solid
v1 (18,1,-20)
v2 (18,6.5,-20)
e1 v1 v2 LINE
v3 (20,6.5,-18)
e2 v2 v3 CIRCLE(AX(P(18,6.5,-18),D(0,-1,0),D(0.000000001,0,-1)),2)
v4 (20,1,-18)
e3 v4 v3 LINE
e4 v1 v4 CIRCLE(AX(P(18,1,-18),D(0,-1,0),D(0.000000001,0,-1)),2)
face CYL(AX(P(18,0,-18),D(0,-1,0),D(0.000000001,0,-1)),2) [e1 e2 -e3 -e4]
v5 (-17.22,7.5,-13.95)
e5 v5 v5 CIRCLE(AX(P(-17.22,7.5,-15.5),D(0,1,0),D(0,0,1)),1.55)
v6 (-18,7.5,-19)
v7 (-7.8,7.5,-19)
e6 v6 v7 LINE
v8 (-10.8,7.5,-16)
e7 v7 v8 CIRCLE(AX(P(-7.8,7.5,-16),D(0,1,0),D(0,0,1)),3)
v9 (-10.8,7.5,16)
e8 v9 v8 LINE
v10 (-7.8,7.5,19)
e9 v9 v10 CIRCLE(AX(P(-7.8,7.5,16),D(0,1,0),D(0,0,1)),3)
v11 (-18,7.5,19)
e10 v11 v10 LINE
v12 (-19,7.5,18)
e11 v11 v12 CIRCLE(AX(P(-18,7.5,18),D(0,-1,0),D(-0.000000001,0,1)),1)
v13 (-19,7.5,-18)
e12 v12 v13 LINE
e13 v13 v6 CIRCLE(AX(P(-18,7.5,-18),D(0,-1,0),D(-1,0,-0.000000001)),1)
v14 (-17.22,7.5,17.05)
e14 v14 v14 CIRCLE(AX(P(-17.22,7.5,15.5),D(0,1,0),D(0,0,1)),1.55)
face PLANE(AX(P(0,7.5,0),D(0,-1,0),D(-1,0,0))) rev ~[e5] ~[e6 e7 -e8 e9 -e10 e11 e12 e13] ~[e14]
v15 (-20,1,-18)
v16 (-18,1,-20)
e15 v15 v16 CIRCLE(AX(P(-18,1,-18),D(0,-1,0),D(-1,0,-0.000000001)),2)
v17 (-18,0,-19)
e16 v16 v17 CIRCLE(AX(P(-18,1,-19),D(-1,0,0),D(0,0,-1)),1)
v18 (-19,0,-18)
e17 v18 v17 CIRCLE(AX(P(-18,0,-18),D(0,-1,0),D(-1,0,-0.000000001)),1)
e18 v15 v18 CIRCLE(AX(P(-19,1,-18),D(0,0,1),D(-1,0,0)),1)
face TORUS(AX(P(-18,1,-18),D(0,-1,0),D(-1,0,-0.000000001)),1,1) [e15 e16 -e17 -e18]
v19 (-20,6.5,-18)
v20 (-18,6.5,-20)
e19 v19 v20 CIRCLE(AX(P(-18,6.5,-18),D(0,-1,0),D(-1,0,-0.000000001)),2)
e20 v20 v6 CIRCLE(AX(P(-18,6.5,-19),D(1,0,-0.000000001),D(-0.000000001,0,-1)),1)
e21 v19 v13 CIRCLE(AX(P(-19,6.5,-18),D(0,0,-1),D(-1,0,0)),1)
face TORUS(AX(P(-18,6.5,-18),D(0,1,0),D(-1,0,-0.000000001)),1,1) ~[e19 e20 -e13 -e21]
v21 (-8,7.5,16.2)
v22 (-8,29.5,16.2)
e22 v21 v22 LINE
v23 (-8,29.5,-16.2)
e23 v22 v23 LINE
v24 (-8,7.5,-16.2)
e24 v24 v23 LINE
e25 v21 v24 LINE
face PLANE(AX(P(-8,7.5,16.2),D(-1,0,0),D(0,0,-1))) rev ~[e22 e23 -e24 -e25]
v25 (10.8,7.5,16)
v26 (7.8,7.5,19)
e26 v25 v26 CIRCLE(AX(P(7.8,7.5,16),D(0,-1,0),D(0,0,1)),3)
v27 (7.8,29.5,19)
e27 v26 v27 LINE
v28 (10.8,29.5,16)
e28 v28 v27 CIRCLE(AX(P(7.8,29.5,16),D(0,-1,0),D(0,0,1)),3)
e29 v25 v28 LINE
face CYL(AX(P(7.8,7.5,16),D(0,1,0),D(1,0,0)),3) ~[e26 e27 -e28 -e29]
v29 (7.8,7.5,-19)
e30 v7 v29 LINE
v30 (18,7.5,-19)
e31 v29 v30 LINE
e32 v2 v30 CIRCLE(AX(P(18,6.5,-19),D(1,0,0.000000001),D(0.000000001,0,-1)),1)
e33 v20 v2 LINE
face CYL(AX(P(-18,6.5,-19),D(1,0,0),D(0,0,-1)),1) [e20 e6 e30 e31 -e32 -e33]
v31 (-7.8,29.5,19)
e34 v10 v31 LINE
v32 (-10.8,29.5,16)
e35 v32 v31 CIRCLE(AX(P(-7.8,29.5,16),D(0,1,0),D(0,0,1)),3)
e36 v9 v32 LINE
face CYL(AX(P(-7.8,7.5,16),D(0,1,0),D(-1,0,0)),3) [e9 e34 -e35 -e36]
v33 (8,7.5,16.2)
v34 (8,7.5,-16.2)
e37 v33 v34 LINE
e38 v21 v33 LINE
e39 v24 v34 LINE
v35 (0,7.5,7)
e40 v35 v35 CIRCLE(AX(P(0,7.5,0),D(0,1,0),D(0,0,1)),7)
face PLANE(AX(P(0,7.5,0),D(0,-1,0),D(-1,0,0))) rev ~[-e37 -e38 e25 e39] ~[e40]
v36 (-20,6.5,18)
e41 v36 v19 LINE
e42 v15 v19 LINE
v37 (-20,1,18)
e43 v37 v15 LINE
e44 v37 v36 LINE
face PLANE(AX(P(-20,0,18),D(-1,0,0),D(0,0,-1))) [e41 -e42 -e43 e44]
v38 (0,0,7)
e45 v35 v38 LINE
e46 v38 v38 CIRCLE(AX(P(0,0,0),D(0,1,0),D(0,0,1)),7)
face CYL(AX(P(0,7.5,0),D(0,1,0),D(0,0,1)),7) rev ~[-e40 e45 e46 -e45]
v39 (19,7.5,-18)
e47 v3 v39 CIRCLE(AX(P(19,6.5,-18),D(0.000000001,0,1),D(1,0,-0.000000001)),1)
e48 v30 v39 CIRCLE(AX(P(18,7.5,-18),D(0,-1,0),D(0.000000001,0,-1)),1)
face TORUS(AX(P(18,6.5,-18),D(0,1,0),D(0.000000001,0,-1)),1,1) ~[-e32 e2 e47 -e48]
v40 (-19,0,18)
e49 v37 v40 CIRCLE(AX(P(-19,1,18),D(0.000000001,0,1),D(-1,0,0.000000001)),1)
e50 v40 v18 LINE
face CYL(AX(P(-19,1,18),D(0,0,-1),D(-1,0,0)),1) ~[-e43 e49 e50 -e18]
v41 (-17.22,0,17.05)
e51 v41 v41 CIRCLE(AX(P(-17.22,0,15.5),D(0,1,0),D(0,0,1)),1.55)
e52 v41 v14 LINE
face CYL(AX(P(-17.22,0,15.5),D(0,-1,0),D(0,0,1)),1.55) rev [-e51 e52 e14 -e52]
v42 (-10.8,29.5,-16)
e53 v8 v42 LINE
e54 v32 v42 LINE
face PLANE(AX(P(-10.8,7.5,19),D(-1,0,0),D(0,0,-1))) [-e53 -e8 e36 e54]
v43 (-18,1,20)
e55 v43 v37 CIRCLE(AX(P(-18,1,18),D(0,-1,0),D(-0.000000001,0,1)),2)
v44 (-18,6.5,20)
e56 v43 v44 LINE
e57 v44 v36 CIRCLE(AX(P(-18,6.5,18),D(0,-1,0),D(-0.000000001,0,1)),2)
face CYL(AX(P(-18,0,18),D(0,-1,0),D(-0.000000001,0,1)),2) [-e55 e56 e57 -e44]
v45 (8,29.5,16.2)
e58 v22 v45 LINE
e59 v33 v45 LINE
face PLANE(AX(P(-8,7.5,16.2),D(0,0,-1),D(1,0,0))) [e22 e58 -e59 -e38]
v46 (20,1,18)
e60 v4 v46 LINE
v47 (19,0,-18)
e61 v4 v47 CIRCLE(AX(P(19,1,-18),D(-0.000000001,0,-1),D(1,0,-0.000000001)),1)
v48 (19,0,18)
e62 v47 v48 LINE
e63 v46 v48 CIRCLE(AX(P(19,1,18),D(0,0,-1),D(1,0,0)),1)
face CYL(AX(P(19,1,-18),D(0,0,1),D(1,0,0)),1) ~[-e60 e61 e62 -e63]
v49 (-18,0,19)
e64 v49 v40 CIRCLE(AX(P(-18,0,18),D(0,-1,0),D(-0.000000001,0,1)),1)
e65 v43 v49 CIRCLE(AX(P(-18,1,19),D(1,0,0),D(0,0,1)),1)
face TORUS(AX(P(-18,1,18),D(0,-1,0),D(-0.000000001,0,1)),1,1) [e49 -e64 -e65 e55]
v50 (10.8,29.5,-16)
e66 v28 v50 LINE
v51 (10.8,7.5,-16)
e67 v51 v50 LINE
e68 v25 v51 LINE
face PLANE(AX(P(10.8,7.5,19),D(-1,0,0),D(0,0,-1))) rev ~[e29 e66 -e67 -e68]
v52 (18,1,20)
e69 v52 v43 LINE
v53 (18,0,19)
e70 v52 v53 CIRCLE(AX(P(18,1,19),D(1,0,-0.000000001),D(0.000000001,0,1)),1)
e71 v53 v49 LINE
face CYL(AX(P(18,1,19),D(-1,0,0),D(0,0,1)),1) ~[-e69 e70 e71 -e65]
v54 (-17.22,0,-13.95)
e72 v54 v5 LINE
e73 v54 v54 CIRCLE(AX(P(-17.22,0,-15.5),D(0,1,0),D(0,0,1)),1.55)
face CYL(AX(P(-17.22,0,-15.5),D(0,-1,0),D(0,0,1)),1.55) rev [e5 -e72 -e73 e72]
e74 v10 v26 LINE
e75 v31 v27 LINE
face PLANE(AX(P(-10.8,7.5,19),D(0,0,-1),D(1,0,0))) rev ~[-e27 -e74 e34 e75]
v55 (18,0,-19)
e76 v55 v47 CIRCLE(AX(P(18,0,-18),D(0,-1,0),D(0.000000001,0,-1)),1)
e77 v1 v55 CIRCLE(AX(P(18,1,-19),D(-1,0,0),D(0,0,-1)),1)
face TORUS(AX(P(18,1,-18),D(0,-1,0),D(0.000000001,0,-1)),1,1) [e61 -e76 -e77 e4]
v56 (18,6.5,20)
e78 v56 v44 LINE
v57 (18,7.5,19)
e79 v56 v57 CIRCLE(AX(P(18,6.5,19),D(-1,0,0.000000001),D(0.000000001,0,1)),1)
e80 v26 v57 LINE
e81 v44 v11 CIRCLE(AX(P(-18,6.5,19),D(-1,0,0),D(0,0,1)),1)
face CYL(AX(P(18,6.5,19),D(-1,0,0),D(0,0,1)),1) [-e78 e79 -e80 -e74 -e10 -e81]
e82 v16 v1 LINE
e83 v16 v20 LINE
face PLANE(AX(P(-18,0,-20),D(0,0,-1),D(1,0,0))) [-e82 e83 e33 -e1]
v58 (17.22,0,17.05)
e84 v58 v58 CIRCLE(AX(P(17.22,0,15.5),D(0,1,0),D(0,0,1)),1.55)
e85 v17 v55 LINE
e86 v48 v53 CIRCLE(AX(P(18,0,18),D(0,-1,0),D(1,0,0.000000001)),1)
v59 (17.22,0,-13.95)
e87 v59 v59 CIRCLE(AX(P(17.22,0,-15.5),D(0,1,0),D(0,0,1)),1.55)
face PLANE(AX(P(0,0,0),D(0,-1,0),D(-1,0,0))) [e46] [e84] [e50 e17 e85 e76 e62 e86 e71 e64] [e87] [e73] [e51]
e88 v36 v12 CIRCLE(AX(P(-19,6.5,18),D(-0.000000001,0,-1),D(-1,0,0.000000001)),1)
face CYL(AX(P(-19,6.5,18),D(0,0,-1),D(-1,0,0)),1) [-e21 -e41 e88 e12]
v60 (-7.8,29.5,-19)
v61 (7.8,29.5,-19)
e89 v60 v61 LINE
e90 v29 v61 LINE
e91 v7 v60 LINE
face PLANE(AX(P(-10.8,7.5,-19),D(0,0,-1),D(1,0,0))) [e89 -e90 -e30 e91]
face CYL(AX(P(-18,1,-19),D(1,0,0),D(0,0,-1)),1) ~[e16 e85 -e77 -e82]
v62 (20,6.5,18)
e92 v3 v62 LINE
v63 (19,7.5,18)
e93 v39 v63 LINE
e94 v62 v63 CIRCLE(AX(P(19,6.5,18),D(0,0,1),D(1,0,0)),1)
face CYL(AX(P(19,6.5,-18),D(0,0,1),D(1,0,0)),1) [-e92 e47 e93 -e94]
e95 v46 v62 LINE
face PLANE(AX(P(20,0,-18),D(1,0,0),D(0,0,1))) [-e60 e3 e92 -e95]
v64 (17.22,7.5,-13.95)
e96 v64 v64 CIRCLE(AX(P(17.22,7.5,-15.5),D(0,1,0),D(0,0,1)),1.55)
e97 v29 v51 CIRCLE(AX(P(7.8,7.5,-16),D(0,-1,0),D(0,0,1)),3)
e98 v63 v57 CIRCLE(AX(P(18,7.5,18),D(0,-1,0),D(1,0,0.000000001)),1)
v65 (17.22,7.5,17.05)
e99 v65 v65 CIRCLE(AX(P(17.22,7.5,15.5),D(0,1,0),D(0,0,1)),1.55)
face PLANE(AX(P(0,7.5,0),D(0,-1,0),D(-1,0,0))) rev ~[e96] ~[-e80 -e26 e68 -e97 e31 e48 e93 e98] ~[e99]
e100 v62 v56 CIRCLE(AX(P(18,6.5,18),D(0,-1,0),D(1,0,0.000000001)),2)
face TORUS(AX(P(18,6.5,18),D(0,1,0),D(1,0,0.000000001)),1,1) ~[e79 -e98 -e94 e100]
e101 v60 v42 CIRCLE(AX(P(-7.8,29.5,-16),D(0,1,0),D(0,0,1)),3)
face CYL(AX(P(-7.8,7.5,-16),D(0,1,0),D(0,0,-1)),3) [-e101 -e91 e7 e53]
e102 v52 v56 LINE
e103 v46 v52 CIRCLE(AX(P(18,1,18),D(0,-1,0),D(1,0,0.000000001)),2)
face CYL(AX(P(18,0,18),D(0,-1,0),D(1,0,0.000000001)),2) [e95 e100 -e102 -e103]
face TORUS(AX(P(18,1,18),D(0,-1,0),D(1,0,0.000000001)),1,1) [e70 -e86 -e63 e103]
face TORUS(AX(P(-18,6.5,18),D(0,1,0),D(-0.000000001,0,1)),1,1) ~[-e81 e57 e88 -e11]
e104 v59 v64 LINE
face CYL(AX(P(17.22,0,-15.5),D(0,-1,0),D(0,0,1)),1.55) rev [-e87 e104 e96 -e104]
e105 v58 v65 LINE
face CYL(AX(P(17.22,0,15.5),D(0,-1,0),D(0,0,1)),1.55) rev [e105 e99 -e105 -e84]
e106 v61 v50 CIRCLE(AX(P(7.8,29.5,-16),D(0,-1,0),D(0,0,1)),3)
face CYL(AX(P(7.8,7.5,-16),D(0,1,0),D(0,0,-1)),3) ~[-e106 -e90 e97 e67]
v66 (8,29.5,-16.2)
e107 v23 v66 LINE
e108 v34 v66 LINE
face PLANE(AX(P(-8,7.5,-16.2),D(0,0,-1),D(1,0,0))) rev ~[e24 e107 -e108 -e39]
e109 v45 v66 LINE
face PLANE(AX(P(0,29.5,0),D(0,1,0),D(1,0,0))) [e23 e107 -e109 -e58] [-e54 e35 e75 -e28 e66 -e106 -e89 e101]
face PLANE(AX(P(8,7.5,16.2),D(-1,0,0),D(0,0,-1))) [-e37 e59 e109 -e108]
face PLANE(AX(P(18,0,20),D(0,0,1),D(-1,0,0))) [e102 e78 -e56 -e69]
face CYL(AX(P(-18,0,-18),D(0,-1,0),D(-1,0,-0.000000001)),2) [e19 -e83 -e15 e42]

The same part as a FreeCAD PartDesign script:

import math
import FreeCAD as App
import Part
import Sketcher


def edges_at(feature, points):
    """Names of the edges that pass closest to the given points."""
    edges = feature.Shape.Edges
    near = lambda p: min(range(len(edges)), key=lambda i: edges[i].distToShape(Part.Vertex(*p))[0])
    return sorted({f"Edge{near(p) + 1}" for p in points})


def add_polygon(sketch, points):
    """Adds a closed chain of lines whose ends are joined by coincident constraints."""
    first, n = sketch.GeometryCount, len(points)
    for a, b in zip(points, points[1:] + points[:1]):
        sketch.addGeometry(Part.LineSegment(App.Vector(*a, 0), App.Vector(*b, 0)), False)
    for i in range(n):
        sketch.addConstraint(Sketcher.Constraint("Coincident", first + i, 2, first + (i + 1) % n, 1))

doc = App.newDocument("Part")
params = doc.addObject("Spreadsheet::Sheet", "Params")
for row, (alias, value) in enumerate([
    ("sketch1_radius", "2 mm"),
    ("sketch1_diameter", "3.1 mm"),
    ("sketch1_width", "36 mm"),
    ("pad1_length", "7.5 mm"),
    ("fillet_radius", "1 mm"),
    ("sketch2_diameter", "14 mm"),
    ("pocket1_length", "10 mm"),
    ("sketch3_width", "16 mm"),
    ("sketch3_height", "38 mm"),
    ("sketch3_width2", "21.6 mm"),
    ("sketch3_height2", "32.4 mm"),
    ("pad2_length", "22 mm"),
    ("fillet2_radius", "3 mm"),
], start=1):
    params.set(f"A{row}", alias)
    params.set(f"B{row}", "=" + value)
    params.setAlias(f"B{row}", alias)

body = doc.addObject("PartDesign::Body", "Body")

sketch1 = body.newObject("Sketcher::SketchObject", "Sketch")
sketch1.AttachmentSupport = (doc.getObject("XZ_Plane"), [""])
sketch1.MapMode = "FlatFace"
sketch1.addGeometry([
    Part.LineSegment(App.Vector(18, -20, 0), App.Vector(-18, -20, 0)),
    Part.ArcOfCircle(Part.Circle(App.Vector(-18, -18, 0), App.Vector(0, 0, 1), 2), math.radians(-180), math.radians(-90)),
    Part.LineSegment(App.Vector(-20, -18, 0), App.Vector(-20, 18, 0)),
    Part.ArcOfCircle(Part.Circle(App.Vector(-18, 18, 0), App.Vector(0, 0, 1), 2), math.radians(90), math.radians(180)),
    Part.LineSegment(App.Vector(-18, 20, 0), App.Vector(18, 20, 0)),
    Part.ArcOfCircle(Part.Circle(App.Vector(18, 18, 0), App.Vector(0, 0, 1), 2), math.radians(0), math.radians(90)),
    Part.LineSegment(App.Vector(20, 18, 0), App.Vector(20, -18, 0)),
    Part.ArcOfCircle(Part.Circle(App.Vector(18, -18, 0), App.Vector(0, 0, 1), 2), math.radians(-90), math.radians(0)),
    Part.Circle(App.Vector(17.2, 15.5, 0), App.Vector(0, 0, 1), 1.6),
    Part.Circle(App.Vector(-17.2, 15.5, 0), App.Vector(0, 0, 1), 1.6),
    Part.Circle(App.Vector(17.2, -15.5, 0), App.Vector(0, 0, 1), 1.6),
    Part.Circle(App.Vector(-17.2, -15.5, 0), App.Vector(0, 0, 1), 1.6),
], False)
sketch1.addConstraint([
    Sketcher.Constraint("Tangent", 0, 2, 1, 2),
    Sketcher.Constraint("Tangent", 1, 1, 2, 1),
    Sketcher.Constraint("Tangent", 2, 2, 3, 2),
    Sketcher.Constraint("Tangent", 3, 1, 4, 1),
    Sketcher.Constraint("Tangent", 4, 2, 5, 2),
    Sketcher.Constraint("Tangent", 5, 1, 6, 1),
    Sketcher.Constraint("Tangent", 6, 2, 7, 2),
    Sketcher.Constraint("Tangent", 7, 1, 0, 1),
    Sketcher.Constraint("Horizontal", 0),
    Sketcher.Constraint("Vertical", 2),
    Sketcher.Constraint("Horizontal", 4),
    Sketcher.Constraint("Vertical", 6),
    Sketcher.Constraint("Equal", 1, 3),
    Sketcher.Constraint("Equal", 3, 5),
    Sketcher.Constraint("Equal", 5, 7),
    Sketcher.Constraint("Equal", 8, 9),
    Sketcher.Constraint("Equal", 9, 10),
    Sketcher.Constraint("Equal", 10, 11),
    Sketcher.Constraint("Symmetric", 1, 3, 5, 3, -1, 1),
    Sketcher.Constraint("Symmetric", 9, 3, 10, 3, -1, 1),
    Sketcher.Constraint("Symmetric", 8, 3, 11, 3, -1, 1),
    Sketcher.Constraint("Symmetric", 8, 3, 9, 3, -2),
    Sketcher.Constraint("Equal", 4, 2),
    Sketcher.Constraint("Radius", 1, 2.0),
    Sketcher.Constraint("Diameter", 8, 3.1),
    Sketcher.Constraint("DistanceX", 0, 2, 0, 1, 36.0),
    Sketcher.Constraint("DistanceY", 10, 3, 8, 3, 31.0),
    Sketcher.Constraint("DistanceX", -1, 1, 8, 3, 17.22),
])
sketch1.setExpression("Constraints[23]", "Params.sketch1_radius")
sketch1.setExpression("Constraints[24]", "Params.sketch1_diameter")
sketch1.setExpression("Constraints[25]", "Params.sketch1_width")
pad1 = body.newObject("PartDesign::Pad", "Pad")
pad1.Profile = sketch1
pad1.setExpression("Length", "Params.pad1_length")
pad1.Reversed = True
doc.recompute()

fillet = body.newObject("PartDesign::Fillet", "Fillet")
fillet.Base = (pad1, edges_at(pad1, [
    (0, 0, -20),
    (19.414, 0, -19.414),
    (20, 0, 0),
    (19.414, 0, 19.414),
    (19.414, 7.5, -19.414),
    (0, 7.5, -20),
    (-19.414, 7.5, -19.414),
    (-20, 7.5, 0),
    (-19.414, 7.5, 19.414),
    (0, 7.5, 20),
    (19.414, 7.5, 19.414),
    (0, 0, 20),
    (20, 7.5, 0),
    (-19.414, 0, 19.414),
    (-20, 0, 0),
    (-19.414, 0, -19.414),
]))
fillet.setExpression("Radius", "Params.fillet_radius")

sketch2 = body.newObject("Sketcher::SketchObject", "Sketch001")
sketch2.AttachmentSupport = (doc.getObject("XZ_Plane"), [""])
sketch2.MapMode = "FlatFace"
sketch2.AttachmentOffset = App.Placement(App.Vector(0, 0, -7.5), App.Rotation())
sketch2.addGeometry(Part.Circle(App.Vector(0, 0, 0), App.Vector(0, 0, 1), 7), False)
sketch2.addConstraint([
    Sketcher.Constraint("Coincident", 0, 3, -1, 1),
    Sketcher.Constraint("Diameter", 0, 14.0),
])
sketch2.setExpression("Constraints[1]", "Params.sketch2_diameter")
pocket1 = body.newObject("PartDesign::Pocket", "Pocket")
pocket1.Profile = sketch2
pocket1.setExpression("Length", "Params.pocket1_length")
pocket1.Reversed = True

sketch3 = body.newObject("Sketcher::SketchObject", "Sketch002")
sketch3.AttachmentSupport = (doc.getObject("XZ_Plane"), [""])
sketch3.MapMode = "FlatFace"
sketch3.AttachmentOffset = App.Placement(App.Vector(0, 0, -7.5), App.Rotation())
add_polygon(sketch3, [(-11, -19), (-11, 19), (11, 19), (11, -19)])
add_polygon(sketch3, [(8, 16), (-8, 16), (-8, -16), (8, -16)])
sketch3.addConstraint([
    Sketcher.Constraint("Vertical", 0),
    Sketcher.Constraint("Horizontal", 1),
    Sketcher.Constraint("Vertical", 2),
    Sketcher.Constraint("Horizontal", 3),
    Sketcher.Constraint("Horizontal", 4),
    Sketcher.Constraint("Vertical", 5),
    Sketcher.Constraint("Horizontal", 6),
    Sketcher.Constraint("Vertical", 7),
    Sketcher.Constraint("Symmetric", 0, 2, 2, 2, -1, 1),
    Sketcher.Constraint("Symmetric", 4, 2, 6, 2, -1, 1),
    Sketcher.Constraint("DistanceX", 4, 2, 4, 1, 16.0),
    Sketcher.Constraint("DistanceY", 0, 1, 0, 2, 38.0),
    Sketcher.Constraint("DistanceX", 1, 1, 1, 2, 21.6),
    Sketcher.Constraint("DistanceY", 5, 2, 5, 1, 32.4),
])
sketch3.setExpression("Constraints[18]", "Params.sketch3_width")
sketch3.setExpression("Constraints[19]", "Params.sketch3_height")
sketch3.setExpression("Constraints[20]", "Params.sketch3_width2")
sketch3.setExpression("Constraints[21]", "Params.sketch3_height2")
pad2 = body.newObject("PartDesign::Pad", "Pad001")
pad2.Profile = sketch3
pad2.setExpression("Length", "Params.pad2_length")
pad2.Reversed = True
doc.recompute()

fillet2 = body.newObject("PartDesign::Fillet", "Fillet001")
fillet2.Base = (pad2, edges_at(pad2, [
    (-10.8, 18.5, -19),
    (-10.8, 18.5, 19),
    (10.8, 18.5, 19),
    (10.8, 18.5, -19),
]))
fillet2.setExpression("Radius", "Params.fillet2_radius")

doc.recompute()
